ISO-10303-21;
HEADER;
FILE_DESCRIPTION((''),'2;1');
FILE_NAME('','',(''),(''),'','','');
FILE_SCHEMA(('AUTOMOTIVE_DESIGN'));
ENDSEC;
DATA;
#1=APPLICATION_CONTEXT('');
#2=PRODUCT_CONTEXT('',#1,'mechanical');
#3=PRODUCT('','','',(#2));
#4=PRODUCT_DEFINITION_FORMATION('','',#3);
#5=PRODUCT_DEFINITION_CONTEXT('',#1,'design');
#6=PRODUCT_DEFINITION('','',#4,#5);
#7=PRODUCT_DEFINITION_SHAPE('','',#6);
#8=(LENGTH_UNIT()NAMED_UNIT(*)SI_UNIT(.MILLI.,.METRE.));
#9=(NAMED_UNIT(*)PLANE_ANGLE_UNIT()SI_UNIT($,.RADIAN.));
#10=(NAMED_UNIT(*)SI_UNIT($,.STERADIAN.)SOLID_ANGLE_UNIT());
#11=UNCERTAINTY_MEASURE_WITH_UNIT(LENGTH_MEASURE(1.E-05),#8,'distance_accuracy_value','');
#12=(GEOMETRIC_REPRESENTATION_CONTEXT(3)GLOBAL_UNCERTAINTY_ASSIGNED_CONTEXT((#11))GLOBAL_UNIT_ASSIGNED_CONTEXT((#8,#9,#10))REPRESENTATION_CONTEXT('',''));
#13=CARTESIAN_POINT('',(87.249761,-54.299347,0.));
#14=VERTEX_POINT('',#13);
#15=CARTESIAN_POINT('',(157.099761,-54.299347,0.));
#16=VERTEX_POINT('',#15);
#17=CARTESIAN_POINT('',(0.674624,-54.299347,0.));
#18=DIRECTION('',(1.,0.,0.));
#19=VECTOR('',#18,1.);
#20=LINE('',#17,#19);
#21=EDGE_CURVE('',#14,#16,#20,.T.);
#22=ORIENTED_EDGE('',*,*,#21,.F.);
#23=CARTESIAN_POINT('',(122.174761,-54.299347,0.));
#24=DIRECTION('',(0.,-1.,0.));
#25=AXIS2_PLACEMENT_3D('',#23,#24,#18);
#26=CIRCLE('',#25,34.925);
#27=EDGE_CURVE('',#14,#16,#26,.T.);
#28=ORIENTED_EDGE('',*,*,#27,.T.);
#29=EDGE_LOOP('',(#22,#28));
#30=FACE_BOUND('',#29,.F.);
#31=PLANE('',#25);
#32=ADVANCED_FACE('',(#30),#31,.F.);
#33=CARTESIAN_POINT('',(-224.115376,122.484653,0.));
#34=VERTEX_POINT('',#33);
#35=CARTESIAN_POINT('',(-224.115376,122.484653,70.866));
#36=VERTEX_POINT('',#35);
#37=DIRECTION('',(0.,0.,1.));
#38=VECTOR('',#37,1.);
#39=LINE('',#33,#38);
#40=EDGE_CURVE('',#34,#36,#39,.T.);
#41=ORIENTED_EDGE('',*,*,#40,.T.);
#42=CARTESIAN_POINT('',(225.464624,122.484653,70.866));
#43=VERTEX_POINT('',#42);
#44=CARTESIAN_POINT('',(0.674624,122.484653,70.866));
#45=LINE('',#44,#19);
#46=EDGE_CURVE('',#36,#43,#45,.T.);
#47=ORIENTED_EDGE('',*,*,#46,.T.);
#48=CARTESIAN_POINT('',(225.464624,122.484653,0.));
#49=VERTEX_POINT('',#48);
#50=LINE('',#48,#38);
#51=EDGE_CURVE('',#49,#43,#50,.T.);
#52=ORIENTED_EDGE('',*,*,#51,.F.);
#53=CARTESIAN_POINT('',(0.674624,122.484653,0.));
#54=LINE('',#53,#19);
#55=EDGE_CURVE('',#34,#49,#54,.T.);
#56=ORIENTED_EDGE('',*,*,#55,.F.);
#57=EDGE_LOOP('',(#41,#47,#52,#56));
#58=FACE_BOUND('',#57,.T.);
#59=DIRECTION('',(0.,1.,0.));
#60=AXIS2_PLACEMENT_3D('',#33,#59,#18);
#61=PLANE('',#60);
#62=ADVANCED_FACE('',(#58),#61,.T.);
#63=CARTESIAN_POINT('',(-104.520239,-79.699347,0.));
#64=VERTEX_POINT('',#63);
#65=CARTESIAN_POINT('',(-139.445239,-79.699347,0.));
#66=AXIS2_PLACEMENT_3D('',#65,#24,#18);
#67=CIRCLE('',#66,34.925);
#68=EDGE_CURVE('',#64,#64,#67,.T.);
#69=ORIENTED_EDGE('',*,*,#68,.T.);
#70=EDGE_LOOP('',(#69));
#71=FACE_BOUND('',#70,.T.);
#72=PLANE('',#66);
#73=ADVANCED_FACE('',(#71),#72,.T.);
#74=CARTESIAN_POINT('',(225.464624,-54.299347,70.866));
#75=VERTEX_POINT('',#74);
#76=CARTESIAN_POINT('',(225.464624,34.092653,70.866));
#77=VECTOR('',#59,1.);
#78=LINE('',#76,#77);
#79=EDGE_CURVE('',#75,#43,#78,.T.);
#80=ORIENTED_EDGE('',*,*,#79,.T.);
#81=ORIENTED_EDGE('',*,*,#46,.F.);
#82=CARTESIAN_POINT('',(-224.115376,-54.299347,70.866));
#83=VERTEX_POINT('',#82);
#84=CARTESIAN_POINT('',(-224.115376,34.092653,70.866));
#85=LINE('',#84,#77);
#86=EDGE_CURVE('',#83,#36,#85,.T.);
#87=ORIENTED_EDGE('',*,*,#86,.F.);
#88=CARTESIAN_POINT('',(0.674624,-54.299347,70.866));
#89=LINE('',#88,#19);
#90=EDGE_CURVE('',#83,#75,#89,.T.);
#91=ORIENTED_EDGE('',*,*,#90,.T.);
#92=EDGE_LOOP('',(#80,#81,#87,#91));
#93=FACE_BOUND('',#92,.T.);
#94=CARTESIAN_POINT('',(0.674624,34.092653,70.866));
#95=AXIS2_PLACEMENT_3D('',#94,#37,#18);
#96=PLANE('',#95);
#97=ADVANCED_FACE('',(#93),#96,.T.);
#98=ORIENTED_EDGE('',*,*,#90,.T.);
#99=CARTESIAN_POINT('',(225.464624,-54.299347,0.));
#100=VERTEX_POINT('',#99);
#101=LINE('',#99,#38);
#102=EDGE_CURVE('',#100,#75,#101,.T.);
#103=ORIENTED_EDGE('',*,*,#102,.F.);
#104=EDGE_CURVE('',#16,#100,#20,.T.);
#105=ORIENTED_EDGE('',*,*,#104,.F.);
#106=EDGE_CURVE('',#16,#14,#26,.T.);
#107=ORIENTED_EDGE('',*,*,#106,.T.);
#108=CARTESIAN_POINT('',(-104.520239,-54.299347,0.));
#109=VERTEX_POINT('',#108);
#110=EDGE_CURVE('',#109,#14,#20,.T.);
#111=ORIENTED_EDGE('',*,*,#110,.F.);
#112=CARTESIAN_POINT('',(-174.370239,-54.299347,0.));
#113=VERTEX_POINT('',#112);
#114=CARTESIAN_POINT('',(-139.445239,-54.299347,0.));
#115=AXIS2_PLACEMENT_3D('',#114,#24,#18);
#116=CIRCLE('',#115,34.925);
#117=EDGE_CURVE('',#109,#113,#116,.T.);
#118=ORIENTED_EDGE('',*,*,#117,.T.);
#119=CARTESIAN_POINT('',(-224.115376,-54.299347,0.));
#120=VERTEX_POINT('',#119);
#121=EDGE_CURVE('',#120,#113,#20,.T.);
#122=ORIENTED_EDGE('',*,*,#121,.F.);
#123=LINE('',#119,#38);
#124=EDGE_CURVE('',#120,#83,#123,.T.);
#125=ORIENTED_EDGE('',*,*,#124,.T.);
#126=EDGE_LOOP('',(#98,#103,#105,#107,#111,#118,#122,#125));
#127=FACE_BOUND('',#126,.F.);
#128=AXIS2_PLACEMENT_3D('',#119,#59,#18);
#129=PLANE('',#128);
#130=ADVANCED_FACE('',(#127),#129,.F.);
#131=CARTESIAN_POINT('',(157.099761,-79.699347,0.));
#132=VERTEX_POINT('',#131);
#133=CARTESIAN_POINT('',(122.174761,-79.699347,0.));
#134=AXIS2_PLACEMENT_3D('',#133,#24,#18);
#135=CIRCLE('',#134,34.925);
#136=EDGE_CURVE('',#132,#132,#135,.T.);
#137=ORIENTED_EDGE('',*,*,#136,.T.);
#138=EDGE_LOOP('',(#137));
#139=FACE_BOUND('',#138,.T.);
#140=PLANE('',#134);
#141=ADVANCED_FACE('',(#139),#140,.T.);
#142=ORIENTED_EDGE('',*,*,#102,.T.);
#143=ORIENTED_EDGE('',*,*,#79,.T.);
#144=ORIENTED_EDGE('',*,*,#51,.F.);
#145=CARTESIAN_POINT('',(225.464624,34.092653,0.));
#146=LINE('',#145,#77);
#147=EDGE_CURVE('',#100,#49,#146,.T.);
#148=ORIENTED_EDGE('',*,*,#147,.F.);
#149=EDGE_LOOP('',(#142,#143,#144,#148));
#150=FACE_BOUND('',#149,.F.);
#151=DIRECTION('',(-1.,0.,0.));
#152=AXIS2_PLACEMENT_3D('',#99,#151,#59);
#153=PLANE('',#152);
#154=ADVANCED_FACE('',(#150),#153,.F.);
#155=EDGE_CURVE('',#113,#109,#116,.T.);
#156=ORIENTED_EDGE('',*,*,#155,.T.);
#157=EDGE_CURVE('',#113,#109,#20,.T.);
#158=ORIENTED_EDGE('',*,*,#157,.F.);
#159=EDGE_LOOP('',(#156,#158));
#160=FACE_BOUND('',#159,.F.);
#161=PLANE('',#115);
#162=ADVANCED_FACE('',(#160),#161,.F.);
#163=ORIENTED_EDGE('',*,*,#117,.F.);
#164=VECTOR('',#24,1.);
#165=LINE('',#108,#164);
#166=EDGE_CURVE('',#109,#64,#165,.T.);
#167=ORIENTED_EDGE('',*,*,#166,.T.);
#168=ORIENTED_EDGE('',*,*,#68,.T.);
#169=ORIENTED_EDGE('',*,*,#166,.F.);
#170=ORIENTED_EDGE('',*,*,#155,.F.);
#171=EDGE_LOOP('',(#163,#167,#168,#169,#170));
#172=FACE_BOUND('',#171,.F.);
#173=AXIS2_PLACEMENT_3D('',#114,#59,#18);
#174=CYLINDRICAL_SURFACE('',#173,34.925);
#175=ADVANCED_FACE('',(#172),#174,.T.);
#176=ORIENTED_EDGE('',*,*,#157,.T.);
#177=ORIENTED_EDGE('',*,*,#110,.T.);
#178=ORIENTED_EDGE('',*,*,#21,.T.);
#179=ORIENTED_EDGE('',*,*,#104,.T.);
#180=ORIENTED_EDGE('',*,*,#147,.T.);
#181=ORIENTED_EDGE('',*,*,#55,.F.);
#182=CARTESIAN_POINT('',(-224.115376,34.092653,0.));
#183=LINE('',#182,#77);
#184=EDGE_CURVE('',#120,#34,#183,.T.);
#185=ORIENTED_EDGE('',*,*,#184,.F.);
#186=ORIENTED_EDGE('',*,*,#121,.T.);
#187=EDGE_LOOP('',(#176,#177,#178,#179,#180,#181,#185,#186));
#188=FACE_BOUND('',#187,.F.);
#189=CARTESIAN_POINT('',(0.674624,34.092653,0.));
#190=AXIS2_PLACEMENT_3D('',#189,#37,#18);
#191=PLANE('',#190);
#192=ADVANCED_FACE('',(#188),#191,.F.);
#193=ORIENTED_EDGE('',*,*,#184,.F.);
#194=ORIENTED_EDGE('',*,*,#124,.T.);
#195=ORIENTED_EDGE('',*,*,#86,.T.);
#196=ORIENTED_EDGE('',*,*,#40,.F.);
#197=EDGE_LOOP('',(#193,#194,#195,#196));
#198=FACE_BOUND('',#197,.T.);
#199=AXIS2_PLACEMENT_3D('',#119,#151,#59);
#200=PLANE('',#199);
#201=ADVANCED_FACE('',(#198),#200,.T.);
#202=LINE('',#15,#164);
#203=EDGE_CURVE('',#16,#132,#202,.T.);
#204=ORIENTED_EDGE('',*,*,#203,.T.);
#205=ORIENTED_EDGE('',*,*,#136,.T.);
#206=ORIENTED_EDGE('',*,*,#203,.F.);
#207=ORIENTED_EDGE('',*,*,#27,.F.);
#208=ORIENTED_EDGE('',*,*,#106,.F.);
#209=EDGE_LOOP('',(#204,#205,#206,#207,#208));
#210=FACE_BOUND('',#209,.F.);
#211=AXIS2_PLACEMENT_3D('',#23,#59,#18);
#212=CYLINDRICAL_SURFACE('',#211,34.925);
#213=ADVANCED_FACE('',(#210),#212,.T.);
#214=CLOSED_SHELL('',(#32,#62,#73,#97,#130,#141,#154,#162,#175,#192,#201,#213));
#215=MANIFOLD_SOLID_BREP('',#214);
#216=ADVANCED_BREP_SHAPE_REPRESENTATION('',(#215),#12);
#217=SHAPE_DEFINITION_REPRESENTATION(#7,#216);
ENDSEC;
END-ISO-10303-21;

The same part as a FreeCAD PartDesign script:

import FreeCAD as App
import Part
import Sketcher
Q = App.Units.Quantity


def add_polygon(sketch, points):
    """Adds a closed chain of lines whose ends are joined by coincident constraints."""
    first, n = sketch.GeometryCount, len(points)
    for a, b in zip(points, points[1:] + points[:1]):
        sketch.addGeometry(Part.LineSegment(App.Vector(*a, 0), App.Vector(*b, 0)), False)
    for i in range(n):
        sketch.addConstraint(Sketcher.Constraint("Coincident", first + i, 2, first + (i + 1) % n, 1))

doc = App.newDocument("Part")
body = doc.addObject("PartDesign::Body", "Body")

sketch1 = doc.addObject("Sketcher::SketchObject", "Sketch")
body.addObject(sketch1)
sketch1.AttachmentSupport = (doc.XY_Plane, [""])
sketch1.MapMode = "FlatFace"
add_polygon(sketch1, [(-224, 122), (-224, -54), (225, -54), (225, 122)])
sketch1.addConstraint(Sketcher.Constraint("Vertical", 0))
sketch1.addConstraint(Sketcher.Constraint("Horizontal", 1))
sketch1.addConstraint(Sketcher.Constraint("Vertical", 2))
sketch1.addConstraint(Sketcher.Constraint("Horizontal", 3))
sketch1.addConstraint(Sketcher.Constraint("DistanceX", 1, 1, 1, 2, Q("17.7 in")))
sketch1.addConstraint(Sketcher.Constraint("DistanceY", 0, 2, 0, 1, Q("6.96 in")))
sketch1.addConstraint(Sketcher.Constraint("DistanceX", 0, 2, -1, 1, 224.115376))
sketch1.addConstraint(Sketcher.Constraint("DistanceY", 0, 2, -1, 1, 54.299347))
pad1 = doc.addObject("PartDesign::Pad", "Pad")
body.addObject(pad1)
pad1.Profile = sketch1
pad1.Length = Q("2.79 in")

sketch2 = doc.addObject("Sketcher::SketchObject", "Sketch001")
body.addObject(sketch2)
sketch2.AttachmentSupport = (doc.XZ_Plane, [""])
sketch2.MapMode = "FlatFace"
sketch2.AttachmentOffset = App.Placement(App.Vector(0, 0, 54.299347), App.Rotation())
sketch2.addGeometry(Part.Circle(App.Vector(-139, 0, 0), App.Vector(0, 0, 1), 35), False)
sketch2.addGeometry(Part.Circle(App.Vector(122, 0, 0), App.Vector(0, 0, 1), 35), False)
sketch2.addConstraint(Sketcher.Constraint("Equal", 0, 1))
sketch2.addConstraint(Sketcher.Constraint("PointOnObject", 0, 3, -1))
sketch2.addConstraint(Sketcher.Constraint("PointOnObject", 1, 3, -1))
sketch2.addConstraint(Sketcher.Constraint("Diameter", 0, Q("2.75 in")))
sketch2.addConstraint(Sketcher.Constraint("DistanceX", 0, 3, 1, 3, Q("10.3 in")))
sketch2.addConstraint(Sketcher.Constraint("DistanceX", 0, 3, -1, 1, 139.445239))
pad2 = doc.addObject("PartDesign::Pad", "Pad001")
body.addObject(pad2)
pad2.Profile = sketch2
pad2.Length = Q("1 in")

doc.recompute()
